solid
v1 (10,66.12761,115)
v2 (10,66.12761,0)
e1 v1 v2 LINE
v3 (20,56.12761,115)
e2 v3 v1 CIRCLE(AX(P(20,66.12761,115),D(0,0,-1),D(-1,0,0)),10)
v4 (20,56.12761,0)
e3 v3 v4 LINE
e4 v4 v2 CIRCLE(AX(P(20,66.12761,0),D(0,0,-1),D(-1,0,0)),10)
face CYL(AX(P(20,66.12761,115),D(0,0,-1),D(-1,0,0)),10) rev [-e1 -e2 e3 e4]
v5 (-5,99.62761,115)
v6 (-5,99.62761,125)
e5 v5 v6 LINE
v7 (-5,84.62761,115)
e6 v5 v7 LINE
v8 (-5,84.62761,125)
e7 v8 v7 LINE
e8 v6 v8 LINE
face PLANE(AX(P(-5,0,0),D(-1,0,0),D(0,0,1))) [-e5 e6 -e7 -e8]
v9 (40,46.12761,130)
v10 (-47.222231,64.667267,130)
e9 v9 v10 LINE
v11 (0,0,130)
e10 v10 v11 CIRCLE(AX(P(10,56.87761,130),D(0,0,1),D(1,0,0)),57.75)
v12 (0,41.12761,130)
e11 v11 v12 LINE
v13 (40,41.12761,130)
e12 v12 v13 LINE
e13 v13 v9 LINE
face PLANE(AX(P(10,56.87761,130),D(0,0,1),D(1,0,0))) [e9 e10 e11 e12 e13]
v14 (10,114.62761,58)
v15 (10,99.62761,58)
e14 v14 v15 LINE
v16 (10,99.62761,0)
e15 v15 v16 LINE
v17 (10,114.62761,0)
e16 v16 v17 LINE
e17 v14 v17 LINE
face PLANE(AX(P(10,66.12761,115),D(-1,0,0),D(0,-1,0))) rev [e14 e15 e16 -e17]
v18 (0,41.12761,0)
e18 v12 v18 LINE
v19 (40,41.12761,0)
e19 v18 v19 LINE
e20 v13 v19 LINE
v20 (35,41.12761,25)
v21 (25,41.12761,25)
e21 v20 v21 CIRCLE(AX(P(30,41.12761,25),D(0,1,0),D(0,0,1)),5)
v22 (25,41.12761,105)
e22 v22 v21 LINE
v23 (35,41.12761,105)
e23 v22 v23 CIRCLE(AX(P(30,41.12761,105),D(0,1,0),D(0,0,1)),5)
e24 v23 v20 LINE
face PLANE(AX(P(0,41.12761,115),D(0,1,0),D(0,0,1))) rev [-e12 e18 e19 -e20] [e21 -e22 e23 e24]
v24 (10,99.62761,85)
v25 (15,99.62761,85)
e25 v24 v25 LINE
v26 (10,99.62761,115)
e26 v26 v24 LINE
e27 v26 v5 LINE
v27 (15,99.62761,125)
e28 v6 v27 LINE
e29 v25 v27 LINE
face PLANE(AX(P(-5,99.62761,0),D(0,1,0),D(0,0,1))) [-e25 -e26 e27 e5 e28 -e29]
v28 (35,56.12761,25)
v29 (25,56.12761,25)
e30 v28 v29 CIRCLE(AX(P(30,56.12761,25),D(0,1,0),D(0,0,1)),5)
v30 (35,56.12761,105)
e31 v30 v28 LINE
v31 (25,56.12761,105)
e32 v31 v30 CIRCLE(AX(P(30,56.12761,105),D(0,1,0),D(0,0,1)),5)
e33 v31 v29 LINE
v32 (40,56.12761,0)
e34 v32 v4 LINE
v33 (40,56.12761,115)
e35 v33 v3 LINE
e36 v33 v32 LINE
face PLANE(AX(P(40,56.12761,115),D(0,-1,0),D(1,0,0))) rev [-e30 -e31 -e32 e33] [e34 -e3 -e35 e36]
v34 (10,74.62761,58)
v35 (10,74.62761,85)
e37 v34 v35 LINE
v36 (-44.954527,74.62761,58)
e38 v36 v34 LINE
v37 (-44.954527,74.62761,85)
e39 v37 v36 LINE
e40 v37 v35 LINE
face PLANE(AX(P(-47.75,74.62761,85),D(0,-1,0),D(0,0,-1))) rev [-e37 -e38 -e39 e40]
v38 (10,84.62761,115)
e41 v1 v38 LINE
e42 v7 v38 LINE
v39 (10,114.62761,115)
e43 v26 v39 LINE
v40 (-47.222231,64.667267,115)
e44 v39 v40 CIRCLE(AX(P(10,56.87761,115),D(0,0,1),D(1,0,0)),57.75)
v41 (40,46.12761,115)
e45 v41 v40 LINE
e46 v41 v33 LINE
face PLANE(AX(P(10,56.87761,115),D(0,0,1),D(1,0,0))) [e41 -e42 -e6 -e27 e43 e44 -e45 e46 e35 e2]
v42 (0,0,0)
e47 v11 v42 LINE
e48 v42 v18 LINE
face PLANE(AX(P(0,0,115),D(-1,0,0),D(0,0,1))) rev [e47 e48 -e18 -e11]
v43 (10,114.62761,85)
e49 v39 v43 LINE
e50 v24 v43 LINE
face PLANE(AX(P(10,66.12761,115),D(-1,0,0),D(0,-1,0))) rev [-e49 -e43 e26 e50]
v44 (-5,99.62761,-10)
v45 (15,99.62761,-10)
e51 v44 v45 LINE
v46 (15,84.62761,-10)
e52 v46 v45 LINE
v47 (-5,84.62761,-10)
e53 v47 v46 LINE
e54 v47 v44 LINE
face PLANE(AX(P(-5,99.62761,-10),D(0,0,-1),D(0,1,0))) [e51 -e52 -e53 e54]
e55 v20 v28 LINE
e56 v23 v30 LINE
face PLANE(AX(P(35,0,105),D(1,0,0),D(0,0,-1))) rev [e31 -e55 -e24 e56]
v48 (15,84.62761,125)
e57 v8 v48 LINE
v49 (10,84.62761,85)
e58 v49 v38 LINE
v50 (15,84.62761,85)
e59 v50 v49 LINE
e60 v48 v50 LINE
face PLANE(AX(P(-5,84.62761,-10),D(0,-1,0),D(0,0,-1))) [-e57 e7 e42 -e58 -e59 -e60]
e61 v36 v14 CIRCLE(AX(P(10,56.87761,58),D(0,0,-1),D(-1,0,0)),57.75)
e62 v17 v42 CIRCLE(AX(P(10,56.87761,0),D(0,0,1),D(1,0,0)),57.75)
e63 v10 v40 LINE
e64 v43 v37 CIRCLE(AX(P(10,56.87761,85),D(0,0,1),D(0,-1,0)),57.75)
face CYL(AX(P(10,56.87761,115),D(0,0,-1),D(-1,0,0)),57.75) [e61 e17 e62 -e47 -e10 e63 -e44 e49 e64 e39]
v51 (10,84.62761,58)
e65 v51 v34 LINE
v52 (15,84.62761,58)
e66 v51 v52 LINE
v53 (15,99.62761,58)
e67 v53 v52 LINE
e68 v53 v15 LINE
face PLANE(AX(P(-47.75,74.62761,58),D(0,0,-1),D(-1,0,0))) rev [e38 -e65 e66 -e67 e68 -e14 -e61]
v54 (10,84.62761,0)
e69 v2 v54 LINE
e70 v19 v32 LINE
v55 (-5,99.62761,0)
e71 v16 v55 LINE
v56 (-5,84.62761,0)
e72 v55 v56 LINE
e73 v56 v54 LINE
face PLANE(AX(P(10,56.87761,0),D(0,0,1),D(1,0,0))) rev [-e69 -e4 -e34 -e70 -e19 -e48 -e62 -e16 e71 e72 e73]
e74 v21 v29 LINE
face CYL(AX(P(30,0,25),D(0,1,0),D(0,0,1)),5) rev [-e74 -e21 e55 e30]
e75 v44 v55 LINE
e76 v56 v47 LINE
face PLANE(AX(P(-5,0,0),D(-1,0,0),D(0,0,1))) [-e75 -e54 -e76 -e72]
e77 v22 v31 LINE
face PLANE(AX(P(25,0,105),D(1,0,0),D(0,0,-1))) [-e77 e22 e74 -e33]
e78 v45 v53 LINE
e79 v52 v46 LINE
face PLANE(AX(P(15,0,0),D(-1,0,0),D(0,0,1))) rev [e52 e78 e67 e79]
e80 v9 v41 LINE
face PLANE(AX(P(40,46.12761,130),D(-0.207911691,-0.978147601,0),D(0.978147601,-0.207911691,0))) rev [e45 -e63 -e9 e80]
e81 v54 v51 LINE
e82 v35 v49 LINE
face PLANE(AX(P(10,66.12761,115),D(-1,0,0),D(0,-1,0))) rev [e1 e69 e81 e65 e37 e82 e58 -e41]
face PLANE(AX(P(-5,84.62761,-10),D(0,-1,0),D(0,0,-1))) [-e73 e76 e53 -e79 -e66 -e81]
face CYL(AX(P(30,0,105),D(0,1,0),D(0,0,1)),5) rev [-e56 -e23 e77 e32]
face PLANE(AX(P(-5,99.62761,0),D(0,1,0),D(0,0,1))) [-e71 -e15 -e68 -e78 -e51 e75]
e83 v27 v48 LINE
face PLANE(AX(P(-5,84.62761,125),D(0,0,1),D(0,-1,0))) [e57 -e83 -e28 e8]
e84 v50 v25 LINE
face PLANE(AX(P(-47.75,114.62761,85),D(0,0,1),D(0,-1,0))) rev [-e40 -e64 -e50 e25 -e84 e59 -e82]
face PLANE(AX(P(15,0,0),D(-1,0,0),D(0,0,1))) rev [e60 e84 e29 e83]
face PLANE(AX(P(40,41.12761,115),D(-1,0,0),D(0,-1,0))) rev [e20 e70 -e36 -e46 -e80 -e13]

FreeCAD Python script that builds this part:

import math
import FreeCAD as App
import Part
import Sketcher

V = App.Vector
Q = App.Units.Quantity


def add_polygon(sketch, points):
    """Adds a closed chain of lines whose ends are joined by coincident constraints."""
    first, n = sketch.GeometryCount, len(points)
    for a, b in zip(points, points[1:] + points[:1]):
        sketch.addGeometry(Part.LineSegment(App.Vector(*a, 0), App.Vector(*b, 0)), False)
    for i in range(n):
        sketch.addConstraint(Sketcher.Constraint("Coincident", first + i, 2, first + (i + 1) % n, 1))

doc = App.newDocument("Part")
body = doc.addObject("PartDesign::Body", "Body")

sketch1 = doc.addObject("Sketcher::SketchObject", "Sketch")
body.addObject(sketch1)
sketch1.AttachmentSupport = (doc.XY_Plane, [""])
sketch1.MapMode = "FlatFace"
sketch1.addGeometry([
    Part.LineSegment(V(0, 0, 0), V(0, 41, 0)),
    Part.LineSegment(V(0, 41, 0), V(40, 41, 0)),
    Part.LineSegment(V(40, 41, 0), V(40, 56, 0)),
    Part.LineSegment(V(40, 56, 0), V(20, 56, 0)),
    Part.ArcOfCircle(Part.Circle(V(20, 66, 0), V(0, 0, 1), 10), math.radians(180), math.radians(270)),
    Part.LineSegment(V(10, 66, 0), V(10, 115, 0)),
    Part.ArcOfCircle(Part.Circle(V(10, 57, 0), V(0, 0, 1), 58), math.radians(90), math.radians(260)),
], False)
sketch1.addConstraint([
    Sketcher.Constraint("Coincident", 0, 2, 1, 1),
    Sketcher.Constraint("Coincident", 1, 2, 2, 1),
    Sketcher.Constraint("Coincident", 2, 2, 3, 1),
    Sketcher.Constraint("Tangent", 3, 2, 4, 2),
    Sketcher.Constraint("Tangent", 4, 1, 5, 1),
    Sketcher.Constraint("Coincident", 5, 2, 6, 1),
    Sketcher.Constraint("Coincident", 6, 2, 0, 1),
    Sketcher.Constraint("Vertical", 0),
    Sketcher.Constraint("Horizontal", 1),
    Sketcher.Constraint("Vertical", 2),
    Sketcher.Constraint("Horizontal", 3),
    Sketcher.Constraint("Vertical", 5),
    Sketcher.Constraint("Coincident", 6, 2, -1, 1),
    Sketcher.Constraint("Vertical", 6, 3, 4, 1),
    Sketcher.Constraint("Radius", 4, Q("10 mm")),
    Sketcher.Constraint("DistanceX", 1, 1, 1, 2, Q("40 mm")),
    Sketcher.Constraint("DistanceX", 3, 2, 3, 1, Q("20 mm")),
    Sketcher.Constraint("DistanceY", 2, 1, 2, 2, Q("15 mm")),
    Sketcher.Constraint("Radius", 6, Q("57.75 mm")),
    Sketcher.Constraint("DistanceY", 5, 1, 5, 2, Q("48.5 mm")),
])
pad1 = doc.addObject("PartDesign::Pad", "Pad")
body.addObject(pad1)
pad1.Profile = sketch1
pad1.Length = 115

sketch2 = doc.addObject("Sketcher::SketchObject", "Sketch001")
body.addObject(sketch2)
sketch2.AttachmentSupport = (doc.YZ_Plane, [""])
sketch2.MapMode = "FlatFace"
sketch2.AttachmentOffset = App.Placement(V(0, 0, 10), App.Rotation())
add_polygon(sketch2, [(100, -10), (100, 125), (85, 125), (85, -10)])
sketch2.addConstraint([
    Sketcher.Constraint("Vertical", 0),
    Sketcher.Constraint("Horizontal", 1),
    Sketcher.Constraint("Vertical", 2),
    Sketcher.Constraint("Horizontal", 3),
    Sketcher.Constraint("DistanceX", 1, 2, 1, 1, Q("15 mm")),
    Sketcher.Constraint("DistanceY", 0, 1, 0, 2, Q("135 mm")),
    Sketcher.Constraint("DistanceY", -1, 1, 0, 2, Q("125 mm")),
    Sketcher.Constraint("DistanceX", -1, 1, 0, 2, Q("99.62761 mm")),
])
pad2 = doc.addObject("PartDesign::Pad", "Pad001")
body.addObject(pad2)
pad2.Profile = sketch2
pad2.Type = "TwoLengths"
pad2.Length = 5
pad2.Length2 = 15

sketch3 = doc.addObject("Sketcher::SketchObject", "Sketch002")
body.addObject(sketch3)
sketch3.AttachmentSupport = (doc.YZ_Plane, [""])
sketch3.MapMode = "FlatFace"
add_polygon(sketch3, [(115, 85), (75, 85), (75, 58), (115, 58)])
sketch3.addConstraint([
    Sketcher.Constraint("Horizontal", 0),
    Sketcher.Constraint("Vertical", 1),
    Sketcher.Constraint("Horizontal", 2),
    Sketcher.Constraint("Vertical", 3),
    Sketcher.Constraint("DistanceX", 0, 2, 0, 1, Q("40 mm")),
    Sketcher.Constraint("DistanceY", 1, 2, 1, 1, Q("27 mm")),
    Sketcher.Constraint("DistanceY", -1, 1, 0, 2, Q("85 mm")),
    Sketcher.Constraint("DistanceX", -1, 1, 0, 2, Q("74.62761 mm")),
])
pocket1 = doc.addObject("PartDesign::Pocket", "Pocket")
body.addObject(pocket1)
pocket1.Profile = sketch3
pocket1.Type = "ThroughAll"
pocket1.Midplane = True

sketch4 = doc.addObject("Sketcher::SketchObject", "Sketch003")
body.addObject(sketch4)
sketch4.AttachmentSupport = (doc.XY_Plane, [""])
sketch4.MapMode = "FlatFace"
sketch4.AttachmentOffset = App.Placement(V(0, 0, 115), App.Rotation())
sketch4.addGeometry([
    Part.LineSegment(V(40, 46, 0), V(-47, 65, 0)),
    Part.ArcOfCircle(Part.Circle(V(10, 57, 0), V(0, 0, 1), 58), math.radians(172), math.radians(260)),
    Part.LineSegment(V(0, 0, 0), V(0, 41, 0)),
    Part.LineSegment(V(0, 41, 0), V(40, 41, 0)),
    Part.LineSegment(V(40, 41, 0), V(40, 46, 0)),
], False)
sketch4.addConstraint([
    Sketcher.Constraint("Coincident", 0, 2, 1, 1),
    Sketcher.Constraint("Coincident", 1, 2, 2, 1),
    Sketcher.Constraint("Coincident", 2, 2, 3, 1),
    Sketcher.Constraint("Coincident", 3, 2, 4, 1),
    Sketcher.Constraint("Coincident", 4, 2, 0, 1),
    Sketcher.Constraint("Vertical", 2),
    Sketcher.Constraint("Horizontal", 3),
    Sketcher.Constraint("Vertical", 4),
    Sketcher.Constraint("Coincident", 1, 2, -1, 1),
    Sketcher.Constraint("DistanceX", 3, 1, 3, 2, Q("40 mm")),
    Sketcher.Constraint("DistanceY", 4, 1, 4, 2, Q("5 mm")),
    Sketcher.Constraint("Angle", 0, Q("168 deg")),
    Sketcher.Constraint("Radius", 1, Q("57.75 mm")),
    Sketcher.Constraint("DistanceX", -1, 1, 1, 3, Q("10 mm")),
    Sketcher.Constraint("DistanceY", 2, 2, 1, 3, Q("15.75 mm")),
])
pad3 = doc.addObject("PartDesign::Pad", "Pad002")
body.addObject(pad3)
pad3.Profile = sketch4
pad3.Length = 15

sketch5 = doc.addObject("Sketcher::SketchObject", "Sketch004")
body.addObject(sketch5)
sketch5.AttachmentSupport = (doc.XZ_Plane, [""])
sketch5.MapMode = "FlatFace"
sketch5.AttachmentOffset = App.Placement(V(0, 0, -56.12761), App.Rotation())
sketch5.addGeometry([
    Part.LineSegment(V(25, 25, 0), V(25, 105, 0)),
    Part.ArcOfCircle(Part.Circle(V(30, 105, 0), V(0, 0, 1), 5), math.radians(0), math.radians(180)),
    Part.LineSegment(V(35, 105, 0), V(35, 25, 0)),
    Part.ArcOfCircle(Part.Circle(V(30, 25, 0), V(0, 0, 1), 5), math.radians(180), math.radians(360)),
], False)
sketch5.addConstraint([
    Sketcher.Constraint("Tangent", 0, 2, 1, 2),
    Sketcher.Constraint("Tangent", 1, 1, 2, 1),
    Sketcher.Constraint("Tangent", 2, 2, 3, 2),
    Sketcher.Constraint("Tangent", 3, 1, 0, 1),
    Sketcher.Constraint("Vertical", 0),
    Sketcher.Constraint("Vertical", 2),
    Sketcher.Constraint("Radius", 1, Q("5 mm")),
    Sketcher.Constraint("DistanceY", 0, 1, 0, 2, Q("80 mm")),
    Sketcher.Constraint("DistanceX", -1, 1, 1, 3, Q("30 mm")),
    Sketcher.Constraint("DistanceY", -1, 1, 1, 3, Q("105 mm")),
])
pocket2 = doc.addObject("PartDesign::Pocket", "Pocket001")
body.addObject(pocket2)
pocket2.Profile = sketch5
pocket2.Type = "ThroughAll"
pocket2.Reversed = True

doc.recompute()
